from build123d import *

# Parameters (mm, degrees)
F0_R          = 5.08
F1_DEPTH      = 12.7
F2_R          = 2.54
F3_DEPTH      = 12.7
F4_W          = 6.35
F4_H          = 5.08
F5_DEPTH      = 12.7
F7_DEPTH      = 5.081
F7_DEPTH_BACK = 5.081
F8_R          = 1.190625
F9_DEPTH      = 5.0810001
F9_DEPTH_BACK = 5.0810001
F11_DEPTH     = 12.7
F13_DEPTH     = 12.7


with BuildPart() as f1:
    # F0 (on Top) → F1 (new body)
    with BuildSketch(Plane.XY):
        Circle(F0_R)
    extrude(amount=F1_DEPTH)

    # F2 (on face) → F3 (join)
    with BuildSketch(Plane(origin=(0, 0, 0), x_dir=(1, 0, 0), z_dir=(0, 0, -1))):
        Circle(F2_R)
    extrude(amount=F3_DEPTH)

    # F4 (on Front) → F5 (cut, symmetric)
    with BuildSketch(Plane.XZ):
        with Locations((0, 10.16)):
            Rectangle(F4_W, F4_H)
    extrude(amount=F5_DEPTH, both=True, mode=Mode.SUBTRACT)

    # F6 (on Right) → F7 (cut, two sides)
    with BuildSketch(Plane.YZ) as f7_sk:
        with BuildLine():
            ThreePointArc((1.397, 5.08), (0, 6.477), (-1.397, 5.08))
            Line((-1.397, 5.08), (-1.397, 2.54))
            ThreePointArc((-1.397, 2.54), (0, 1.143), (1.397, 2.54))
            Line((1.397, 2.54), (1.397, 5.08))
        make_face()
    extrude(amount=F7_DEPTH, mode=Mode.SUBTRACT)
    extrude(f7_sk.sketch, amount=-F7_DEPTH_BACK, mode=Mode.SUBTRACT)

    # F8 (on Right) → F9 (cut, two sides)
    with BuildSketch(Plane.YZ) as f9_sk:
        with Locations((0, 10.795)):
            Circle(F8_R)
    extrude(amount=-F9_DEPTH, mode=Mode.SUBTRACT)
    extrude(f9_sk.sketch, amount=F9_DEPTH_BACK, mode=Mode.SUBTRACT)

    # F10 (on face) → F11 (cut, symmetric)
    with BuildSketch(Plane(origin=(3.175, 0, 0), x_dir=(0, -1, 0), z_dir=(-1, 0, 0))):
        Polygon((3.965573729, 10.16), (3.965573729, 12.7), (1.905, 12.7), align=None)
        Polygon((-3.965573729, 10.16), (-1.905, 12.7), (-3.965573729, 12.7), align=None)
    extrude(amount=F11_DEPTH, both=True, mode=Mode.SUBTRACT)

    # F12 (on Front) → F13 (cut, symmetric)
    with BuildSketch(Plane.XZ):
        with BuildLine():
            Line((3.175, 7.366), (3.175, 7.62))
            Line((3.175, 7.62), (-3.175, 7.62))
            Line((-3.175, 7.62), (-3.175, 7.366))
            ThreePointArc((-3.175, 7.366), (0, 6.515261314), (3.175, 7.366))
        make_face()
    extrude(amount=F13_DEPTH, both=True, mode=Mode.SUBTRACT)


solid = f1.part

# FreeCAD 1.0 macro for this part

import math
import FreeCAD as App
import Part
import Sketcher

V = App.Vector
Q = App.Units.Quantity


def add_polygon(sketch, points):
    """Adds a closed chain of lines whose ends are joined by coincident constraints."""
    first, n = sketch.GeometryCount, len(points)
    for a, b in zip(points, points[1:] + points[:1]):
        sketch.addGeometry(Part.LineSegment(App.Vector(*a, 0), App.Vector(*b, 0)), False)
    for i in range(n):
        sketch.addConstraint(Sketcher.Constraint("Coincident", first + i, 2, first + (i + 1) % n, 1))

doc = App.newDocument("Part")
body = doc.addObject("PartDesign::Body", "Body")

# Sketch on XY plane
sketch1 = doc.addObject("Sketcher::SketchObject", "Sketch")
body.addObject(sketch1)
sketch1.AttachmentSupport = (doc.XY_Plane, [""])
sketch1.MapMode = "FlatFace"
sketch1.addGeometry(Part.Circle(V(0, 0, 0), V(0, 0, 1), 5), False)
sketch1.addConstraint(Sketcher.Constraint("Coincident", 0, 3, -1, 1))
sketch1.addConstraint(Sketcher.Constraint("Diameter", 0, Q("0.4 in")))
pad1 = doc.addObject("PartDesign::Pad", "Pad")
body.addObject(pad1)
pad1.Profile = sketch1
pad1.Length = Q("0.5 in")

# Sketch on XY plane
sketch2 = doc.addObject("Sketcher::SketchObject", "Sketch001")
body.addObject(sketch2)
sketch2.AttachmentSupport = (doc.XY_Plane, [""])
sketch2.MapMode = "FlatFace"
sketch2.addGeometry(Part.Circle(V(0, 0, 0), V(0, 0, 1), 2.5), False)
sketch2.addConstraint(Sketcher.Constraint("Coincident", 0, 3, -1, 1))
sketch2.addConstraint(Sketcher.Constraint("Diameter", 0, Q("0.2 in")))
pad2 = doc.addObject("PartDesign::Pad", "Pad001")
body.addObject(pad2)
pad2.Profile = sketch2
pad2.Length = Q("0.5 in")
pad2.Reversed = True

# Sketch on XZ plane
sketch3 = doc.addObject("Sketcher::SketchObject", "Sketch002")
body.addObject(sketch3)
sketch3.AttachmentSupport = (doc.XZ_Plane, [""])
sketch3.MapMode = "FlatFace"
add_polygon(sketch3, [(-3, 13), (-3, 8), (3, 8), (3, 13)])  # lines 0-3
sketch3.addConstraint(Sketcher.Constraint("Vertical", 0))
sketch3.addConstraint(Sketcher.Constraint("Horizontal", 1))
sketch3.addConstraint(Sketcher.Constraint("Vertical", 2))
sketch3.addConstraint(Sketcher.Constraint("Horizontal", 3))
sketch3.addConstraint(Sketcher.Constraint("DistanceY", 0, 2, 0, 1, Q("0.2 in")))
sketch3.addConstraint(Sketcher.Constraint("DistanceX", 1, 1, 1, 2, Q("0.25 in")))
sketch3.addConstraint(Sketcher.Constraint("DistanceY", -1, 1, 0, 2, Q("0.3 in")))
sketch3.addConstraint(Sketcher.Constraint("DistanceX", 0, 2, -1, 1, Q("0.125 in")))
pocket1 = doc.addObject("PartDesign::Pocket", "Pocket")
body.addObject(pocket1)
pocket1.Profile = sketch3
pocket1.Length = Q("1 in")
pocket1.Midplane = True

# Sketch on YZ plane
sketch4 = doc.addObject("Sketcher::SketchObject", "Sketch003")
body.addObject(sketch4)
sketch4.AttachmentSupport = (doc.YZ_Plane, [""])
sketch4.MapMode = "FlatFace"
sketch4.addGeometry(Part.ArcOfCircle(Part.Circle(V(0, 5.1, 0), V(0, 0, 1), 1.4), math.radians(0), math.radians(180)), False)
sketch4.addGeometry(Part.LineSegment(V(-1.4, 5.1, 0), V(-1.4, 2.5, 0)), False)
sketch4.addGeometry(Part.ArcOfCircle(Part.Circle(V(0, 2.5, 0), V(0, 0, 1), 1.4), math.radians(180), math.radians(360)), False)
sketch4.addGeometry(Part.LineSegment(V(1.4, 2.5, 0), V(1.4, 5.1, 0)), False)
sketch4.addConstraint(Sketcher.Constraint("Tangent", 0, 2, 1, 1))
sketch4.addConstraint(Sketcher.Constraint("Tangent", 1, 2, 2, 1))
sketch4.addConstraint(Sketcher.Constraint("Tangent", 2, 2, 3, 1))
sketch4.addConstraint(Sketcher.Constraint("Tangent", 3, 2, 0, 1))
sketch4.addConstraint(Sketcher.Constraint("Vertical", 1))
sketch4.addConstraint(Sketcher.Constraint("Vertical", 3))
sketch4.addConstraint(Sketcher.Constraint("PointOnObject", 0, 3, -2))
sketch4.addConstraint(Sketcher.Constraint("DistanceY", 1, 2, 1, 1, Q("0.1 in")))
sketch4.addConstraint(Sketcher.Constraint("Radius", 0, Q("0.055 in")))
sketch4.addConstraint(Sketcher.Constraint("DistanceY", -1, 1, 0, 3, Q("0.2 in")))
pocket2 = doc.addObject("PartDesign::Pocket", "Pocket001")
body.addObject(pocket2)
pocket2.Profile = sketch4
pocket2.Type = "ThroughAll"
pocket2.Midplane = True

# Sketch on YZ plane
sketch5 = doc.addObject("Sketcher::SketchObject", "Sketch004")
body.addObject(sketch5)
sketch5.AttachmentSupport = (doc.YZ_Plane, [""])
sketch5.MapMode = "FlatFace"
sketch5.addGeometry(Part.Circle(V(0, 10.8, 0), V(0, 0, 1), 1.2), False)
sketch5.addConstraint(Sketcher.Constraint("PointOnObject", 0, 3, -2))
sketch5.addConstraint(Sketcher.Constraint("Diameter", 0, Q("0.09375 in")))
sketch5.addConstraint(Sketcher.Constraint("DistanceY", -1, 1, 0, 3, Q("0.425 in")))
pocket3 = doc.addObject("PartDesign::Pocket", "Pocket002")
body.addObject(pocket3)
pocket3.Profile = sketch5
pocket3.Type = "ThroughAll"
pocket3.Midplane = True

# Sketch on YZ plane
sketch6 = doc.addObject("Sketcher::SketchObject", "Sketch005")
body.addObject(sketch6)
sketch6.AttachmentSupport = (doc.YZ_Plane, [""])
sketch6.MapMode = "FlatFace"
sketch6.AttachmentOffset = App.Placement(V(0, 0, 0.125 * 25.4), App.Rotation())
add_polygon(sketch6, [(-4, 10.2), (-4, 12.7), (-1.9, 12.7)])  # lines 0-2
add_polygon(sketch6, [(4, 10.2), (1.9, 12.7), (4, 12.7)])  # lines 3-5
sketch6.addConstraint(Sketcher.Constraint("Vertical", 0))
sketch6.addConstraint(Sketcher.Constraint("Horizontal", 1))
sketch6.addConstraint(Sketcher.Constraint("Horizontal", 4))
sketch6.addConstraint(Sketcher.Constraint("Vertical", 5))
sketch6.addConstraint(Sketcher.Constraint("Symmetric", 1, 2, 3, 2, -2))
sketch6.addConstraint(Sketcher.Constraint("Symmetric", 2, 2, 5, 2, -2))
sketch6.addConstraint(Sketcher.Constraint("DistanceY", 0, 1, 0, 2, Q("0.1 in")))
sketch6.addConstraint(Sketcher.Constraint("DistanceY", -1, 1, 0, 2, Q("0.5 in")))
sketch6.addConstraint(Sketcher.Constraint("DistanceX", 1, 2, 3, 2, Q("0.15 in")))
sketch6.addConstraint(Sketcher.Constraint("DistanceX", 1, 1, 1, 2, Q("2.060574 mm")))
pocket4 = doc.addObject("PartDesign::Pocket", "Pocket003")
body.addObject(pocket4)
pocket4.Profile = sketch6
pocket4.Length = Q("1 in")
pocket4.Midplane = True

# Sketch on XZ plane
sketch7 = doc.addObject("Sketcher::SketchObject", "Sketch006")
body.addObject(sketch7)
sketch7.AttachmentSupport = (doc.XZ_Plane, [""])
sketch7.MapMode = "FlatFace"
sketch7.addGeometry(Part.LineSegment(V(3.17, 7.37, 0), V(3.17, 7.62, 0)), False)
sketch7.addGeometry(Part.LineSegment(V(3.17, 7.62, 0), V(-3.17, 7.62, 0)), False)
sketch7.addGeometry(Part.LineSegment(V(-3.17, 7.62, 0), V(-3.17, 7.37, 0)), False)
sketch7.addGeometry(Part.ArcOfCircle(Part.Circle(V(0, 12.87, 0), V(0, 0, 1), 6.35), math.radians(-120), math.radians(-60)), False)
sketch7.addConstraint(Sketcher.Constraint("Coincident", 0, 2, 1, 1))
sketch7.addConstraint(Sketcher.Constraint("Coincident", 1, 2, 2, 1))
sketch7.addConstraint(Sketcher.Constraint("Coincident", 2, 2, 3, 1))
sketch7.addConstraint(Sketcher.Constraint("Coincident", 3, 2, 0, 1))
sketch7.addConstraint(Sketcher.Constraint("Vertical", 0))
sketch7.addConstraint(Sketcher.Constraint("Horizontal", 1))
sketch7.addConstraint(Sketcher.Constraint("Vertical", 2))
sketch7.addConstraint(Sketcher.Constraint("Symmetric", 2, 2, 3, 2, -2))
sketch7.addConstraint(Sketcher.Constraint("Radius", 3, Q("0.25 in")))
sketch7.addConstraint(Sketcher.Constraint("DistanceX", 1, 2, 1, 1, Q("0.25 in")))
sketch7.addConstraint(Sketcher.Constraint("DistanceY", 0, 1, 0, 2, Q("0.01 in")))
sketch7.addConstraint(Sketcher.Constraint("DistanceY", -1, 1, 0, 2, Q("0.3 in")))
pocket5 = doc.addObject("PartDesign::Pocket", "Pocket004")
body.addObject(pocket5)
pocket5.Profile = sketch7
pocket5.Length = Q("1 in")
pocket5.Midplane = True

doc.recompute()
